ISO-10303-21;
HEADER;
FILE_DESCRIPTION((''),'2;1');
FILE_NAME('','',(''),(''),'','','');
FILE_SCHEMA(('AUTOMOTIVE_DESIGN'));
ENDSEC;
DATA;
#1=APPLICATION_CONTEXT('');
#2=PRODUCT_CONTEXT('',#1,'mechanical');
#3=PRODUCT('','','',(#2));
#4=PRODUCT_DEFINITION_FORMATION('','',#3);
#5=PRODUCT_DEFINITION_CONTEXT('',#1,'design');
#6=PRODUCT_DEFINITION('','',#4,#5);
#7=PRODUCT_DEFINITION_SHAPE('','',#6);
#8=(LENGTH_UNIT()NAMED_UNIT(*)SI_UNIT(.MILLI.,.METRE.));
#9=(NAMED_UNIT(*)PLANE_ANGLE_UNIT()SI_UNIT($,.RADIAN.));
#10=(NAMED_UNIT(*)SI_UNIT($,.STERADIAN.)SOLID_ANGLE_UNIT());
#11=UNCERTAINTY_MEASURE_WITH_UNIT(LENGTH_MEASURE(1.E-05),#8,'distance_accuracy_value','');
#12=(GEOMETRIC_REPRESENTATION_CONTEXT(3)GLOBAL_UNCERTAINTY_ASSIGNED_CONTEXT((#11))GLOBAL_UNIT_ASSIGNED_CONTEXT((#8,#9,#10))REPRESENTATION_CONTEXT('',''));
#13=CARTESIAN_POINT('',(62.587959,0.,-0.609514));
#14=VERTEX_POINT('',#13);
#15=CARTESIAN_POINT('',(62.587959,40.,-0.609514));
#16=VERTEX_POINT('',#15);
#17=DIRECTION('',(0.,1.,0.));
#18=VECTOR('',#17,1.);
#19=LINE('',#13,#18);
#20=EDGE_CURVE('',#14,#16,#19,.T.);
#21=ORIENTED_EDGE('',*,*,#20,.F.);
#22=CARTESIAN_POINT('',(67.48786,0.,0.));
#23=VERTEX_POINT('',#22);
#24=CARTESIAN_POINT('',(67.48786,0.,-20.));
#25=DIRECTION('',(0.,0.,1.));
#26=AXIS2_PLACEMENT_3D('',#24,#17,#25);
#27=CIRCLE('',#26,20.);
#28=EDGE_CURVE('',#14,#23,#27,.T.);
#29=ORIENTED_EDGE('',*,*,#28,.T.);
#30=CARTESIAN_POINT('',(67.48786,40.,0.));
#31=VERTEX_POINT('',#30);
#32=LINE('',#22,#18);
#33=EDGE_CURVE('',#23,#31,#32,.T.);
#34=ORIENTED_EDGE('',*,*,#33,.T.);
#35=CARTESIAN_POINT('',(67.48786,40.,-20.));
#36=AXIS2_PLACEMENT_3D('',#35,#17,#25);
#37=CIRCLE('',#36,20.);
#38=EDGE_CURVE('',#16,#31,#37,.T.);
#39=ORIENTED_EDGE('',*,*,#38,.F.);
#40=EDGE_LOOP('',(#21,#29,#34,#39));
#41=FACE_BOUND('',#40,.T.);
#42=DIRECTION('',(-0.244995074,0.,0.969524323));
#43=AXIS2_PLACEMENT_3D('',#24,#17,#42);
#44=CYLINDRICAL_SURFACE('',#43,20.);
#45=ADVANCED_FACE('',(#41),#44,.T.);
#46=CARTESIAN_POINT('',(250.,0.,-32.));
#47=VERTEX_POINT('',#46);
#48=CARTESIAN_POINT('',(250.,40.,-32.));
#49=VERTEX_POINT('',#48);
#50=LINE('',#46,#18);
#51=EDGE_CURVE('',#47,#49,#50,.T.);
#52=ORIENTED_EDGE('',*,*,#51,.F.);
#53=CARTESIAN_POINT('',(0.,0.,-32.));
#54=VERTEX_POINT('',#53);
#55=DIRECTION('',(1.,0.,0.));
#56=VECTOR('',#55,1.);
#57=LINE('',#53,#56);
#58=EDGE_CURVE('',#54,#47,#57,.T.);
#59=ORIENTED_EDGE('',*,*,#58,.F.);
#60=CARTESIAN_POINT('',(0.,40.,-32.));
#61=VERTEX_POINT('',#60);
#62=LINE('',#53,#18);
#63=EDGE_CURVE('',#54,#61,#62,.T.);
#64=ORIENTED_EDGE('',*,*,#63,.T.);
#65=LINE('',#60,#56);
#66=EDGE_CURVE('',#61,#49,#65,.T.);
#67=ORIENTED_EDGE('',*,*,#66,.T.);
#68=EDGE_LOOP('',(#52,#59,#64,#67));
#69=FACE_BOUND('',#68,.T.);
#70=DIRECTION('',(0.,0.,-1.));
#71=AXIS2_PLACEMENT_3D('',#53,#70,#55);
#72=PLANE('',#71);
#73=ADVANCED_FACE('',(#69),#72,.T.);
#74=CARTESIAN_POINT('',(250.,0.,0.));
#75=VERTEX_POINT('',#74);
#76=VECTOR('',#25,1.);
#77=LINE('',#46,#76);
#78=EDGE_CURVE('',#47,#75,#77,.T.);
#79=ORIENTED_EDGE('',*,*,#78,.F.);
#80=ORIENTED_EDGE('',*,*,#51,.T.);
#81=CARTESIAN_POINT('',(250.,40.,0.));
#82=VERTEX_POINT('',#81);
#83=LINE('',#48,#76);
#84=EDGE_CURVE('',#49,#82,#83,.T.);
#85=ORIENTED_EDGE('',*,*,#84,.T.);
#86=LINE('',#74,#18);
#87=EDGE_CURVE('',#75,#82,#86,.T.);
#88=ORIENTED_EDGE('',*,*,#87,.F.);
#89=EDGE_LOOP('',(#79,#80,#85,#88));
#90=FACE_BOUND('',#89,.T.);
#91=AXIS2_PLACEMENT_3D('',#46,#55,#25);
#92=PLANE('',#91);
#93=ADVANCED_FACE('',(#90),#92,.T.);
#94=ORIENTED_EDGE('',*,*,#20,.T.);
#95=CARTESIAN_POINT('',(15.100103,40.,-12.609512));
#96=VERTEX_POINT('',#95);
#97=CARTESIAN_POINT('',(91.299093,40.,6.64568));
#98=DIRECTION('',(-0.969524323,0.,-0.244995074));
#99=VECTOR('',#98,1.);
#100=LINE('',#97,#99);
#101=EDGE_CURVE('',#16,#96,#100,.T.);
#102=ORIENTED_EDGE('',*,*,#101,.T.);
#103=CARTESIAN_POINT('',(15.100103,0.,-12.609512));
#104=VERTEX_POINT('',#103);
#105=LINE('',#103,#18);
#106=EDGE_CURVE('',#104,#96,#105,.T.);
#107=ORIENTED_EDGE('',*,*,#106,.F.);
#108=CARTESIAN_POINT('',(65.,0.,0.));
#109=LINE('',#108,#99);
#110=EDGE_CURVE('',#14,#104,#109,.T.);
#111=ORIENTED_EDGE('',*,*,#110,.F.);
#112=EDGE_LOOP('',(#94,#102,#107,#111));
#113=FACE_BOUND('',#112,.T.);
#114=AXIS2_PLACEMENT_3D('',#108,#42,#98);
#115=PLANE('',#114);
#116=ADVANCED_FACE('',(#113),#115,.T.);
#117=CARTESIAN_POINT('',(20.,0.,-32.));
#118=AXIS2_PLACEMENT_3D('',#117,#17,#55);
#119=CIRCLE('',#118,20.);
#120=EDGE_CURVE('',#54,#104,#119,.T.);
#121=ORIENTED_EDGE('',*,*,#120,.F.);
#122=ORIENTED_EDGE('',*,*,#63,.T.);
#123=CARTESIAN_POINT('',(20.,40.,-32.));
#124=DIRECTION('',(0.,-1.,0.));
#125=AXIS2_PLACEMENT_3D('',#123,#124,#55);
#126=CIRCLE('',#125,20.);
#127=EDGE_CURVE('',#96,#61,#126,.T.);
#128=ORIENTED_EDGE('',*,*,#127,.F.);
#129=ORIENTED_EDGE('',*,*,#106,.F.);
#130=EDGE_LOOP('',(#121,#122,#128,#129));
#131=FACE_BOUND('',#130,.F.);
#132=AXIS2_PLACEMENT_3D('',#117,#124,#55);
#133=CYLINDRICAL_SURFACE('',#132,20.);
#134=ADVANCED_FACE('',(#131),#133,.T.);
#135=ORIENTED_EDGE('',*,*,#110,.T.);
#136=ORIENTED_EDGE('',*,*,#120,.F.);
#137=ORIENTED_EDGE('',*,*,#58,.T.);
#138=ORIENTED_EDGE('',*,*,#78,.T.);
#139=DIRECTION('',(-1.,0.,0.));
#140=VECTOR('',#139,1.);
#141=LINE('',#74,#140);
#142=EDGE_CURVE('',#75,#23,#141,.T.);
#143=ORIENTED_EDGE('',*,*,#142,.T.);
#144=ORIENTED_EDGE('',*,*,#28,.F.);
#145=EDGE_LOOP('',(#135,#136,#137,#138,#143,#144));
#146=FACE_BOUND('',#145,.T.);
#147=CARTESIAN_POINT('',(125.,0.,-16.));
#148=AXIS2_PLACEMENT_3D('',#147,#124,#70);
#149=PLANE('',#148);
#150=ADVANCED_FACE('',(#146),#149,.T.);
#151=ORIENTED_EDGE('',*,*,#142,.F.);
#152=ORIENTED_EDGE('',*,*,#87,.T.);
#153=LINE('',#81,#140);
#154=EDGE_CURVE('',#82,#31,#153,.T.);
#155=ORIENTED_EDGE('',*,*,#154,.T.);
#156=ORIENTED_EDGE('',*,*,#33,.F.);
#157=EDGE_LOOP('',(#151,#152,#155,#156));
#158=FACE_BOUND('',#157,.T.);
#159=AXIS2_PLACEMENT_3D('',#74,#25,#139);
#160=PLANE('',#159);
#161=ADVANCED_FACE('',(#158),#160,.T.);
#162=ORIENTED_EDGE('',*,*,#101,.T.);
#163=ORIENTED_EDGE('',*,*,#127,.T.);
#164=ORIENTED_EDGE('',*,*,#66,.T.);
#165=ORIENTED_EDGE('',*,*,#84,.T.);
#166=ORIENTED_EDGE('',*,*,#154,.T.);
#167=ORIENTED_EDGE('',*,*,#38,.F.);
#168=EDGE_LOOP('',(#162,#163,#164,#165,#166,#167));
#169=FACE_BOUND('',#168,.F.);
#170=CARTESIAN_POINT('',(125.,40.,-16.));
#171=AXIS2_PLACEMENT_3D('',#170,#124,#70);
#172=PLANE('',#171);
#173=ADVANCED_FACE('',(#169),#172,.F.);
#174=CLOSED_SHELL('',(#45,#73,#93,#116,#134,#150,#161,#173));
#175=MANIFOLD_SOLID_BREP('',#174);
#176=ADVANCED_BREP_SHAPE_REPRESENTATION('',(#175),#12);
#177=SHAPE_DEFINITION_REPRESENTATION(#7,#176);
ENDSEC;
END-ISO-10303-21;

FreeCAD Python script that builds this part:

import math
import FreeCAD as App
import Part
import Sketcher
from FreeCAD import Vector


def edges_at(feature, points):
    """Names of the edges that pass closest to the given points."""
    edges = feature.Shape.Edges
    near = lambda p: min(range(len(edges)), key=lambda i: edges[i].distToShape(Part.Vertex(*p))[0])
    return sorted({f"Edge{near(p) + 1}" for p in points})


def add_polygon(sketch, points):
    """Adds a closed chain of lines whose ends are joined by coincident constraints."""
    first, n = sketch.GeometryCount, len(points)
    for a, b in zip(points, points[1:] + points[:1]):
        sketch.addGeometry(Part.LineSegment(App.Vector(*a, 0), App.Vector(*b, 0)), False)
    for i in range(n):
        sketch.addConstraint(Sketcher.Constraint("Coincident", first + i, 2, first + (i + 1) % n, 1))

doc = App.newDocument("Part")
body = doc.addObject("PartDesign::Body", "Body")

# Sketch on XZ plane
sketch1 = body.newObject("Sketcher::SketchObject", "Sketch")
sketch1.AttachmentSupport = (doc.getObject("XZ_Plane"), [""])
sketch1.MapMode = "FlatFace"
add_polygon(sketch1, [(0, 0), (0, -32), (250, -32), (250, 0)])  # lines 0-3
sketch1.addConstraint(Sketcher.Constraint("Vertical", 0))
sketch1.addConstraint(Sketcher.Constraint("Horizontal", 1))
sketch1.addConstraint(Sketcher.Constraint("Vertical", 2))
sketch1.addConstraint(Sketcher.Constraint("Horizontal", 3))
sketch1.addConstraint(Sketcher.Constraint("Coincident", 3, 2, -1, 1))
sketch1.addConstraint(Sketcher.Constraint("DistanceX", 1, 1, 1, 2, 250.0))
sketch1.addConstraint(Sketcher.Constraint("DistanceY", 0, 2, 0, 1, 32.0))
pad1 = body.newObject("PartDesign::Pad", "Pad")
pad1.Profile = sketch1
pad1.Length = 40
pad1.Reversed = True

# Sketch on XZ plane
sketch2 = body.newObject("Sketcher::SketchObject", "Sketch001")
sketch2.AttachmentSupport = (doc.getObject("XZ_Plane"), [""])
sketch2.MapMode = "FlatFace"
sketch2.addGeometry(Part.LineSegment(Vector(15, -13, 0), Vector(65, 0, 0)), False)
sketch2.addGeometry(Part.LineSegment(Vector(65, 0, 0), Vector(0, 0, 0)), False)
sketch2.addGeometry(Part.LineSegment(Vector(0, 0, 0), Vector(0, -32, 0)), False)
sketch2.addGeometry(Part.ArcOfCircle(Part.Circle(Vector(20, -32, 0), Vector(0, 0, 1), 20), math.radians(104), math.radians(180)), False)
sketch2.addConstraint(Sketcher.Constraint("Coincident", 0, 2, 1, 1))
sketch2.addConstraint(Sketcher.Constraint("Coincident", 1, 2, 2, 1))
sketch2.addConstraint(Sketcher.Constraint("Tangent", 2, 2, 3, 2))
sketch2.addConstraint(Sketcher.Constraint("Tangent", 3, 1, 0, 1))
sketch2.addConstraint(Sketcher.Constraint("Horizontal", 1))
sketch2.addConstraint(Sketcher.Constraint("Vertical", 2))
sketch2.addConstraint(Sketcher.Constraint("Coincident", 1, 2, -1, 1))
sketch2.addConstraint(Sketcher.Constraint("Radius", 3, 20.0))
sketch2.addConstraint(Sketcher.Constraint("DistanceX", 1, 2, 1, 1, 65.0))
sketch2.addConstraint(Sketcher.Constraint("DistanceY", 2, 2, 2, 1, 32.0))
pocket1 = body.newObject("PartDesign::Pocket", "Pocket")
pocket1.Profile = sketch2
pocket1.Length = 50
doc.recompute()

fillet = body.newObject("PartDesign::Fillet", "Fillet")
fillet.Base = (pocket1, edges_at(pocket1, [(65, 20, 0)]))
fillet.Radius = 20

doc.recompute()
